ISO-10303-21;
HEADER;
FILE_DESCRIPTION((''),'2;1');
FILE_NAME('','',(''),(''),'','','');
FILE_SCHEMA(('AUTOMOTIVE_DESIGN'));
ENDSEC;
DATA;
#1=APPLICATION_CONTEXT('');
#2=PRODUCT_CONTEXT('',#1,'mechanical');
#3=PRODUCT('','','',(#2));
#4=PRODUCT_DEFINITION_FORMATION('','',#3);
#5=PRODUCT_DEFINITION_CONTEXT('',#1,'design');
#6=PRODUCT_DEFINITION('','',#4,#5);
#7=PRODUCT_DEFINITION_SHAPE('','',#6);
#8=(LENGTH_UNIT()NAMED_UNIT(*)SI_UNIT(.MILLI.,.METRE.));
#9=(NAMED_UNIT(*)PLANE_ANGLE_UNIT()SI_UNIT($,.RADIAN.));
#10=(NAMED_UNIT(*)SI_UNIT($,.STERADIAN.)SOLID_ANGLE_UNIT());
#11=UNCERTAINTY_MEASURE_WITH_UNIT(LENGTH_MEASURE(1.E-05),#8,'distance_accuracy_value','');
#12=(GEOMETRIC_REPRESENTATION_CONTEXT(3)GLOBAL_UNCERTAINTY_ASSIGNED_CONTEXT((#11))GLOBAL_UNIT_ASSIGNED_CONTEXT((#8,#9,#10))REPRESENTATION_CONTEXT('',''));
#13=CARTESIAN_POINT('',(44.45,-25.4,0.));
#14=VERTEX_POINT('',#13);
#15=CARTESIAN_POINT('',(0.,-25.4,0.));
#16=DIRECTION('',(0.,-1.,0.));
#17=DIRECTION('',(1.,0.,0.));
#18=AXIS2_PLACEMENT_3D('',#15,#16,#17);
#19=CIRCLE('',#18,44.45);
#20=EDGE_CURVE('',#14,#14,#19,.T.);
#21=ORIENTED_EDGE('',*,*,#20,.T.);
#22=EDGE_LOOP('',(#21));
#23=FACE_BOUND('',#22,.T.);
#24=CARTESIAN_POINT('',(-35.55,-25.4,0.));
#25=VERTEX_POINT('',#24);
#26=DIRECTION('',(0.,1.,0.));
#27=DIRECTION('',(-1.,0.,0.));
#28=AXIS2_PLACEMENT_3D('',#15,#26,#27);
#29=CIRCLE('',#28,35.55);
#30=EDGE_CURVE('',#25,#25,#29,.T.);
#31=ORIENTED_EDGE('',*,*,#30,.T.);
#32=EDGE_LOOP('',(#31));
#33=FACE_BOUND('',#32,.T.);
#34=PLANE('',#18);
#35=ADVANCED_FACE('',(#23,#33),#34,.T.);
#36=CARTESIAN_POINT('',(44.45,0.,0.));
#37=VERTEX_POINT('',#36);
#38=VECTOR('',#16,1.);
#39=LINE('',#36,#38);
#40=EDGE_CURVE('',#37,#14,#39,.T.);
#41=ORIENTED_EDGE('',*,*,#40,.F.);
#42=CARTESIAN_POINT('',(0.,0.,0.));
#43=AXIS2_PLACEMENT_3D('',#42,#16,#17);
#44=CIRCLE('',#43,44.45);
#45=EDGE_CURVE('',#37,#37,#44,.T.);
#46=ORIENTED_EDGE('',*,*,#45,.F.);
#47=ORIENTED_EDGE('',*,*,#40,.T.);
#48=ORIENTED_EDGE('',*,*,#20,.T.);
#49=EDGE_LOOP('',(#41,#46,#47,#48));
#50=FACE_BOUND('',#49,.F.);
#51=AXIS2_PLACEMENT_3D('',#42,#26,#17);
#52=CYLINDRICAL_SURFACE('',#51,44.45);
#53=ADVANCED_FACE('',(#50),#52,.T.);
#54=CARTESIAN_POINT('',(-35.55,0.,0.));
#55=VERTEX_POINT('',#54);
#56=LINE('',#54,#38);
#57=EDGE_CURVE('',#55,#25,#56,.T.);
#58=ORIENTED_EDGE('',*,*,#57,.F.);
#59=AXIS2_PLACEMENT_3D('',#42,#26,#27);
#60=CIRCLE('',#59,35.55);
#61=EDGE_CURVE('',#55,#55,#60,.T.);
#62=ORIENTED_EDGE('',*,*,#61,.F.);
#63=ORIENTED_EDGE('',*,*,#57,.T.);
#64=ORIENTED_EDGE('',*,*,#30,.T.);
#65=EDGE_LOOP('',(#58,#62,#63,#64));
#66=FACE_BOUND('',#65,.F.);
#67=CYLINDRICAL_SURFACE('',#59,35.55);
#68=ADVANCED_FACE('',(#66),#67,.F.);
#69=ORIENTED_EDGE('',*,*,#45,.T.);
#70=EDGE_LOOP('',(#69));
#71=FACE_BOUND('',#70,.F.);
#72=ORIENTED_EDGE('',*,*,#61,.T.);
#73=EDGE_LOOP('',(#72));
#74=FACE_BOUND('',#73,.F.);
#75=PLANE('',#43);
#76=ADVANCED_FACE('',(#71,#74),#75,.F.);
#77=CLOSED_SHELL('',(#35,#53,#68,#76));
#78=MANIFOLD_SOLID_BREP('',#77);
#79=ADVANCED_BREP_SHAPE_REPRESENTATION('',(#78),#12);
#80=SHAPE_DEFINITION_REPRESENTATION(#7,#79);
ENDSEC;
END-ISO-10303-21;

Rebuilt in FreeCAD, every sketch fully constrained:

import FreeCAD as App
import Part
import Sketcher
from FreeCAD import Vector
Q = App.Units.Quantity

doc = App.newDocument("Part")
params = doc.addObject("Spreadsheet::Sheet", "Params")
for row, (alias, value) in enumerate([
    ("sketch1_diameter", "3.5 in"),
    ("pad1_length", "1 in"),
], start=1):
    params.set(f"A{row}", alias)
    params.set(f"B{row}", "=" + value)
    params.setAlias(f"B{row}", alias)

body = doc.addObject("PartDesign::Body", "Body")

# Sketch on XZ plane
sketch1 = doc.addObject("Sketcher::SketchObject", "Sketch")
body.addObject(sketch1)
sketch1.AttachmentSupport = (doc.XZ_Plane, [""])
sketch1.MapMode = "FlatFace"
sketch1.addGeometry(Part.Circle(Vector(0, 0, 0), Vector(0, 0, 1), 44), False)
sketch1.addGeometry(Part.Circle(Vector(0, 0, 0), Vector(0, 0, 1), 36), False)
sketch1.addConstraint(Sketcher.Constraint("Coincident", 0, 3, -1, 1))
sketch1.addConstraint(Sketcher.Constraint("Coincident", 1, 3, -1, 1))
sketch1.addConstraint(Sketcher.Constraint("Diameter", 0, Q("3.5 in")))
sketch1.addConstraint(Sketcher.Constraint("Diameter", 1, Q("71.1 mm")))
sketch1.setExpression("Constraints[2]", "Params.sketch1_diameter")
pad1 = doc.addObject("PartDesign::Pad", "Pad")
body.addObject(pad1)
pad1.Profile = sketch1
pad1.setExpression("Length", "Params.pad1_length")

doc.recompute()
